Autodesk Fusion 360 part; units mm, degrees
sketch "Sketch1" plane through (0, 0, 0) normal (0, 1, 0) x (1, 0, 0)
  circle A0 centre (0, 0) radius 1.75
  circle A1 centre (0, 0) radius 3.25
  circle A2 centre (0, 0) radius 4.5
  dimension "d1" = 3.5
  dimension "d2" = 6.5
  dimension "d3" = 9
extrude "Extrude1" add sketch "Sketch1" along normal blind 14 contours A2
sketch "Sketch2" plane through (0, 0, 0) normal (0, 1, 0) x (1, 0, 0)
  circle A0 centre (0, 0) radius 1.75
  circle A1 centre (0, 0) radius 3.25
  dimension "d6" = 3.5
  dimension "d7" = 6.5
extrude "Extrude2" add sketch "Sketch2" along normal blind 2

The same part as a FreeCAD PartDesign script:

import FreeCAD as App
import Part
import Sketcher

V = App.Vector

doc = App.newDocument("Part")
body = doc.addObject("PartDesign::Body", "Body")

# Sketch on XZ plane
sketch1 = doc.addObject("Sketcher::SketchObject", "Sketch")
body.addObject(sketch1)
sketch1.AttachmentSupport = (doc.XZ_Plane, [""])
sketch1.MapMode = "FlatFace"
sketch1.addGeometry(Part.Circle(V(0, 0, 0), V(0, 0, 1), 4.5), False)
sketch1.addGeometry(Part.Circle(V(0, 0, 0), V(0, 0, 1), 3.2), False)
sketch1.addConstraint(Sketcher.Constraint("Coincident", 0, 3, -1, 1))
sketch1.addConstraint(Sketcher.Constraint("Coincident", 1, 3, -1, 1))
sketch1.addConstraint(Sketcher.Constraint("Diameter", 0, 9.0))
sketch1.addConstraint(Sketcher.Constraint("Diameter", 1, 6.5))
pad1 = doc.addObject("PartDesign::Pad", "Pad")
body.addObject(pad1)
pad1.Profile = sketch1
pad1.Length = 14
pad1.Reversed = True

# Sketch on XZ plane
sketch2 = doc.addObject("Sketcher::SketchObject", "Sketch001")
body.addObject(sketch2)
sketch2.AttachmentSupport = (doc.XZ_Plane, [""])
sketch2.MapMode = "FlatFace"
sketch2.addGeometry(Part.Circle(V(0, 0, 0), V(0, 0, 1), 3.2), False)
sketch2.addGeometry(Part.Circle(V(0, 0, 0), V(0, 0, 1), 1.8), False)
sketch2.addConstraint(Sketcher.Constraint("Coincident", 0, 3, -1, 1))
sketch2.addConstraint(Sketcher.Constraint("Coincident", 1, 3, -1, 1))
sketch2.addConstraint(Sketcher.Constraint("Diameter", 0, 6.5))
sketch2.addConstraint(Sketcher.Constraint("Diameter", 1, 3.5))
pad2 = doc.addObject("PartDesign::Pad", "Pad001")
body.addObject(pad2)
pad2.Profile = sketch2
pad2.Length = 2
pad2.Reversed = True

doc.recompute()
